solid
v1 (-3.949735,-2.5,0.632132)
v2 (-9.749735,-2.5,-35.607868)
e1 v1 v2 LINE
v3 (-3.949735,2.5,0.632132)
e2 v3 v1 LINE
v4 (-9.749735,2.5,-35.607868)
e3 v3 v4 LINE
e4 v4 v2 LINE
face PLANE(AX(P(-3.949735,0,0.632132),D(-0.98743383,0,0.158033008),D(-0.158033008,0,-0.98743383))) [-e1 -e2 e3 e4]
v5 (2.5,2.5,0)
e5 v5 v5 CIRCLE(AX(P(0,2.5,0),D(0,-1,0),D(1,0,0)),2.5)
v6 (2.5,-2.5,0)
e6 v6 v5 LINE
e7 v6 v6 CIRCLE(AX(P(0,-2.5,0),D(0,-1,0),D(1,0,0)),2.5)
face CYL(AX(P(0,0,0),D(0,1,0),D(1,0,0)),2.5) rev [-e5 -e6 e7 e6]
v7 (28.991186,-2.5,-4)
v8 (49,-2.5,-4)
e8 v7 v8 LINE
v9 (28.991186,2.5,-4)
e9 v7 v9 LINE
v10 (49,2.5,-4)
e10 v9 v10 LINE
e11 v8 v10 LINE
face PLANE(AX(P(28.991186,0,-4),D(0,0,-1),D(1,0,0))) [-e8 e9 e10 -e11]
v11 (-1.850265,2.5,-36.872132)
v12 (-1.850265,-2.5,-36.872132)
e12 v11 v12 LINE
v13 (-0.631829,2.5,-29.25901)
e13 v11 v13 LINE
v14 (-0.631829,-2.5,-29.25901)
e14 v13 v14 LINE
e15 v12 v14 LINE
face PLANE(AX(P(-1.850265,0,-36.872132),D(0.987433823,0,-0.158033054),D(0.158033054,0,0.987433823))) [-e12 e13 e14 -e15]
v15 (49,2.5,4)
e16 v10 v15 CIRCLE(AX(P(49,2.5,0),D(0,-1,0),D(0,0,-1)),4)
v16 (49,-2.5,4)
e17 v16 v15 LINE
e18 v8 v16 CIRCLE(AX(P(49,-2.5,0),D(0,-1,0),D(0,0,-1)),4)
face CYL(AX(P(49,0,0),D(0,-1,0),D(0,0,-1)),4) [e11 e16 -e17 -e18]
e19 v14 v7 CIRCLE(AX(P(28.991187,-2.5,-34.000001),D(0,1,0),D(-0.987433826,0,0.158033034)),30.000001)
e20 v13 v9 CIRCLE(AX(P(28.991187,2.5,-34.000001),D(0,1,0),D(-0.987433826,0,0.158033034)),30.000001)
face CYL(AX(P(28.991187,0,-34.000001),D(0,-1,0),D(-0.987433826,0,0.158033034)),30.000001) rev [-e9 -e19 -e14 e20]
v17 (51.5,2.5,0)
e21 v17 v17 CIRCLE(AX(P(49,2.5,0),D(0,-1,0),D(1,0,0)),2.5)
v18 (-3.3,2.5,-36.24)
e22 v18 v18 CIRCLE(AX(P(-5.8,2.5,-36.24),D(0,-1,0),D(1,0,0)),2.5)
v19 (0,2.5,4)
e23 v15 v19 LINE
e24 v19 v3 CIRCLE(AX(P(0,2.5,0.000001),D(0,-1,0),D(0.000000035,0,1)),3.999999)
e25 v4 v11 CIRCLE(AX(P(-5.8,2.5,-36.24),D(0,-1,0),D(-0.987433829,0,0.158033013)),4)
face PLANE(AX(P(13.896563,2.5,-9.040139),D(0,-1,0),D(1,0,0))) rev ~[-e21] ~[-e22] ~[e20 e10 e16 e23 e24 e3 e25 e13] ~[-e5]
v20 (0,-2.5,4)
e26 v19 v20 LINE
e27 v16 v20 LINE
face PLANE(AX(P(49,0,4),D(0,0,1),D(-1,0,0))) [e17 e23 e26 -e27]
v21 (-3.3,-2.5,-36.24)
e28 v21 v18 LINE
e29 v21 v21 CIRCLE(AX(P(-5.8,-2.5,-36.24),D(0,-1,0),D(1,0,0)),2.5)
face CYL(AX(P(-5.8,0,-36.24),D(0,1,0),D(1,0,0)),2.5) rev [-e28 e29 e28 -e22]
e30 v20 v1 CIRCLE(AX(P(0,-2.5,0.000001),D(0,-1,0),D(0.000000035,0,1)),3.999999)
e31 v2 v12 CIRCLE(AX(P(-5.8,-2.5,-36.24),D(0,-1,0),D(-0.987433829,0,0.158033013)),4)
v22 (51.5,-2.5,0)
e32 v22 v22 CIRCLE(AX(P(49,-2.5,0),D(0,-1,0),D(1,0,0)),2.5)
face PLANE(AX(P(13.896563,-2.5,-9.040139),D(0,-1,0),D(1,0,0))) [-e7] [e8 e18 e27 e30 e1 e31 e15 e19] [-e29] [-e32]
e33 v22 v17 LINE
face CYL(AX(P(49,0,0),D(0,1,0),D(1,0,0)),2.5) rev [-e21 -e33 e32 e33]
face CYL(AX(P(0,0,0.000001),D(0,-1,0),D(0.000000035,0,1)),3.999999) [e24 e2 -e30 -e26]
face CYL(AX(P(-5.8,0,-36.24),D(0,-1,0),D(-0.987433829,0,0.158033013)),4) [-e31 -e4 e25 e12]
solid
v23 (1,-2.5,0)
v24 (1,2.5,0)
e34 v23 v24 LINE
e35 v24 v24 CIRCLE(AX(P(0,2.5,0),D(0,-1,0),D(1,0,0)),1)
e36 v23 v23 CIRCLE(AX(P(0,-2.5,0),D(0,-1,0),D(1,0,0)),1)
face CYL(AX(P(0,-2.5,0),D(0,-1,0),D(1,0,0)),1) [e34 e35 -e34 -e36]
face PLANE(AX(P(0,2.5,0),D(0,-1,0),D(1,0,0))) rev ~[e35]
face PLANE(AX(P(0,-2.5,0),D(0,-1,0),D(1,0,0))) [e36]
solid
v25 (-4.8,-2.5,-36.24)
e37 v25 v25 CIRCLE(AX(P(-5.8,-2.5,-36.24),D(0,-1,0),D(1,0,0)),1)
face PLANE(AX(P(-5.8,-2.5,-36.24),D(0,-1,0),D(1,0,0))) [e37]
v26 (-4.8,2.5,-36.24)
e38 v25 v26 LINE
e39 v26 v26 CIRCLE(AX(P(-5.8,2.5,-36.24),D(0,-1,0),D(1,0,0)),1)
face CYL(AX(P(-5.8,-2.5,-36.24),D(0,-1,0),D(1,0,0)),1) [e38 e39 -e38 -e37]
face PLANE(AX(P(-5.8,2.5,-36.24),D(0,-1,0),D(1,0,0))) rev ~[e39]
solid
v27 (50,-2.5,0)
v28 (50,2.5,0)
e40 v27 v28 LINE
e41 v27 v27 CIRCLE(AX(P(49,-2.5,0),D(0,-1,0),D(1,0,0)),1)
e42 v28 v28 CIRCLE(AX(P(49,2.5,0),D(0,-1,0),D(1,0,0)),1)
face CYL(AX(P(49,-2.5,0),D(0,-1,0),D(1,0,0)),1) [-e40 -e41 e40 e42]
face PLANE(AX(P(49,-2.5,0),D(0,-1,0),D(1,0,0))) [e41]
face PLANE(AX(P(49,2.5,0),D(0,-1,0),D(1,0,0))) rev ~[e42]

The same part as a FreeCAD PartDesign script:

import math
import FreeCAD as App
import Part
import Sketcher

V = App.Vector

doc = App.newDocument("Part")
body = doc.addObject("PartDesign::Body", "Body")

# Sketch on XZ plane
sketch1 = body.newObject("Sketcher::SketchObject", "Sketch")
sketch1.AttachmentSupport = (doc.getObject("XZ_Plane"), [""])
sketch1.MapMode = "FlatFace"
sketch1.addGeometry(Part.LineSegment(V(49, 4, 0), V(0, 4, 0)), False)
sketch1.addGeometry(Part.ArcOfCircle(Part.Circle(V(0, 0.000001, 0), V(0, 0, 1), 3.999999), math.radians(89.999998), math.radians(170.907264)), False)
sketch1.addGeometry(Part.LineSegment(V(-3.949735, 0.632132, 0), V(-9.749735, -35.607868, 0)), False)
sketch1.addGeometry(Part.ArcOfCircle(Part.Circle(V(-5.8, -36.24, 0), V(0, 0, 1), 4), math.radians(170.907256), math.radians(350.907256)), False)
sketch1.addGeometry(Part.LineSegment(V(-1.850265, -36.872132, 0), V(-0.631829, -29.25901, 0)), False)
sketch1.addGeometry(Part.ArcOfCircle(Part.Circle(V(28.991187, -34.000001, 0), V(0, 0, 1), 30.000001), math.radians(90.000002), math.radians(170.907255)), False)
sketch1.addGeometry(Part.LineSegment(V(28.991186, -4, 0), V(49, -4, 0)), False)
sketch1.addGeometry(Part.ArcOfCircle(Part.Circle(V(49, 0, 0), V(0, 0, 1), 4), math.radians(-90), math.radians(90)), False)
sketch1.addGeometry(Part.Circle(V(-5.8, -36.24, 0), V(0, 0, 1), 2.5), False)
sketch1.addGeometry(Part.Circle(V(0, 0, 0), V(0, 0, 1), 2.5), False)
sketch1.addGeometry(Part.Circle(V(49, 0, 0), V(0, 0, 1), 2.5), False)
sketch1.addConstraint(Sketcher.Constraint("Tangent", 0, 2, 1, 1))
sketch1.addConstraint(Sketcher.Constraint("Tangent", 1, 2, 2, 1))
sketch1.addConstraint(Sketcher.Constraint("Tangent", 2, 2, 3, 1))
sketch1.addConstraint(Sketcher.Constraint("Tangent", 3, 2, 4, 1))
sketch1.addConstraint(Sketcher.Constraint("Tangent", 4, 2, 5, 2))
sketch1.addConstraint(Sketcher.Constraint("Tangent", 5, 1, 6, 1))
sketch1.addConstraint(Sketcher.Constraint("Tangent", 6, 2, 7, 1))
sketch1.addConstraint(Sketcher.Constraint("Tangent", 7, 2, 0, 1))
sketch1.addConstraint(Sketcher.Constraint("Horizontal", 0))
sketch1.addConstraint(Sketcher.Constraint("Horizontal", 6))
sketch1.addConstraint(Sketcher.Constraint("Coincident", 1, 3, -1, 1))
sketch1.addConstraint(Sketcher.Constraint("Coincident", 9, 3, -1, 1))
sketch1.addConstraint(Sketcher.Constraint("Coincident", 8, 3, 3, 3))
sketch1.addConstraint(Sketcher.Constraint("Coincident", 10, 3, 7, 3))
sketch1.addConstraint(Sketcher.Constraint("Equal", 1, 3))
sketch1.addConstraint(Sketcher.Constraint("Equal", 3, 7))
sketch1.addConstraint(Sketcher.Constraint("Equal", 8, 9))
sketch1.addConstraint(Sketcher.Constraint("Equal", 9, 10))
sketch1.addConstraint(Sketcher.Constraint("Parallel", 2, 4))
sketch1.addConstraint(Sketcher.Constraint("Diameter", 8, 5.0))
sketch1.addConstraint(Sketcher.Constraint("Radius", 1, 3.999999))
sketch1.addConstraint(Sketcher.Constraint("Radius", 5, 30.000001))
sketch1.addConstraint(Sketcher.Constraint("DistanceX", 0, 2, 0, 1, 49.0))
sketch1.addConstraint(Sketcher.Constraint("DistanceX", 3, 3, -1, 1, 5.8))
sketch1.addConstraint(Sketcher.Constraint("DistanceY", 3, 3, -1, 1, 36.24))
pad1 = body.newObject("PartDesign::Pad", "Pad")
pad1.Profile = sketch1
pad1.Length = 5
pad1.Midplane = True
body2 = doc.addObject("PartDesign::Body", "Body001")
body2.AllowCompound = True

# Sketch on XZ plane
sketch2 = body2.newObject("Sketcher::SketchObject", "Sketch001")
sketch2.AttachmentSupport = (doc.getObject("XZ_Plane001"), [""])
sketch2.MapMode = "FlatFace"
sketch2.AttachmentOffset = App.Placement(V(0, 0, 2.5), App.Rotation())
sketch2.addGeometry(Part.Circle(V(0, 0, 0), V(0, 0, 1), 1), False)
sketch2.addGeometry(Part.Circle(V(-5.8, -36.24, 0), V(0, 0, 1), 1), False)
sketch2.addGeometry(Part.Circle(V(49, 0, 0), V(0, 0, 1), 1), False)
sketch2.addConstraint(Sketcher.Constraint("Coincident", 0, 3, -1, 1))
sketch2.addConstraint(Sketcher.Constraint("Equal", 0, 1))
sketch2.addConstraint(Sketcher.Constraint("Equal", 1, 2))
sketch2.addConstraint(Sketcher.Constraint("PointOnObject", 2, 3, -1))
sketch2.addConstraint(Sketcher.Constraint("Diameter", 0, 2.0))
sketch2.addConstraint(Sketcher.Constraint("DistanceX", -1, 1, 2, 3, 49.0))
sketch2.addConstraint(Sketcher.Constraint("DistanceX", 1, 3, -1, 1, 5.8))
sketch2.addConstraint(Sketcher.Constraint("DistanceY", 1, 3, -1, 1, 36.24))
pad2 = body2.newObject("PartDesign::Pad", "Pad001")
pad2.Profile = sketch2
pad2.Length = 5
pad2.Reversed = True

doc.recompute()
